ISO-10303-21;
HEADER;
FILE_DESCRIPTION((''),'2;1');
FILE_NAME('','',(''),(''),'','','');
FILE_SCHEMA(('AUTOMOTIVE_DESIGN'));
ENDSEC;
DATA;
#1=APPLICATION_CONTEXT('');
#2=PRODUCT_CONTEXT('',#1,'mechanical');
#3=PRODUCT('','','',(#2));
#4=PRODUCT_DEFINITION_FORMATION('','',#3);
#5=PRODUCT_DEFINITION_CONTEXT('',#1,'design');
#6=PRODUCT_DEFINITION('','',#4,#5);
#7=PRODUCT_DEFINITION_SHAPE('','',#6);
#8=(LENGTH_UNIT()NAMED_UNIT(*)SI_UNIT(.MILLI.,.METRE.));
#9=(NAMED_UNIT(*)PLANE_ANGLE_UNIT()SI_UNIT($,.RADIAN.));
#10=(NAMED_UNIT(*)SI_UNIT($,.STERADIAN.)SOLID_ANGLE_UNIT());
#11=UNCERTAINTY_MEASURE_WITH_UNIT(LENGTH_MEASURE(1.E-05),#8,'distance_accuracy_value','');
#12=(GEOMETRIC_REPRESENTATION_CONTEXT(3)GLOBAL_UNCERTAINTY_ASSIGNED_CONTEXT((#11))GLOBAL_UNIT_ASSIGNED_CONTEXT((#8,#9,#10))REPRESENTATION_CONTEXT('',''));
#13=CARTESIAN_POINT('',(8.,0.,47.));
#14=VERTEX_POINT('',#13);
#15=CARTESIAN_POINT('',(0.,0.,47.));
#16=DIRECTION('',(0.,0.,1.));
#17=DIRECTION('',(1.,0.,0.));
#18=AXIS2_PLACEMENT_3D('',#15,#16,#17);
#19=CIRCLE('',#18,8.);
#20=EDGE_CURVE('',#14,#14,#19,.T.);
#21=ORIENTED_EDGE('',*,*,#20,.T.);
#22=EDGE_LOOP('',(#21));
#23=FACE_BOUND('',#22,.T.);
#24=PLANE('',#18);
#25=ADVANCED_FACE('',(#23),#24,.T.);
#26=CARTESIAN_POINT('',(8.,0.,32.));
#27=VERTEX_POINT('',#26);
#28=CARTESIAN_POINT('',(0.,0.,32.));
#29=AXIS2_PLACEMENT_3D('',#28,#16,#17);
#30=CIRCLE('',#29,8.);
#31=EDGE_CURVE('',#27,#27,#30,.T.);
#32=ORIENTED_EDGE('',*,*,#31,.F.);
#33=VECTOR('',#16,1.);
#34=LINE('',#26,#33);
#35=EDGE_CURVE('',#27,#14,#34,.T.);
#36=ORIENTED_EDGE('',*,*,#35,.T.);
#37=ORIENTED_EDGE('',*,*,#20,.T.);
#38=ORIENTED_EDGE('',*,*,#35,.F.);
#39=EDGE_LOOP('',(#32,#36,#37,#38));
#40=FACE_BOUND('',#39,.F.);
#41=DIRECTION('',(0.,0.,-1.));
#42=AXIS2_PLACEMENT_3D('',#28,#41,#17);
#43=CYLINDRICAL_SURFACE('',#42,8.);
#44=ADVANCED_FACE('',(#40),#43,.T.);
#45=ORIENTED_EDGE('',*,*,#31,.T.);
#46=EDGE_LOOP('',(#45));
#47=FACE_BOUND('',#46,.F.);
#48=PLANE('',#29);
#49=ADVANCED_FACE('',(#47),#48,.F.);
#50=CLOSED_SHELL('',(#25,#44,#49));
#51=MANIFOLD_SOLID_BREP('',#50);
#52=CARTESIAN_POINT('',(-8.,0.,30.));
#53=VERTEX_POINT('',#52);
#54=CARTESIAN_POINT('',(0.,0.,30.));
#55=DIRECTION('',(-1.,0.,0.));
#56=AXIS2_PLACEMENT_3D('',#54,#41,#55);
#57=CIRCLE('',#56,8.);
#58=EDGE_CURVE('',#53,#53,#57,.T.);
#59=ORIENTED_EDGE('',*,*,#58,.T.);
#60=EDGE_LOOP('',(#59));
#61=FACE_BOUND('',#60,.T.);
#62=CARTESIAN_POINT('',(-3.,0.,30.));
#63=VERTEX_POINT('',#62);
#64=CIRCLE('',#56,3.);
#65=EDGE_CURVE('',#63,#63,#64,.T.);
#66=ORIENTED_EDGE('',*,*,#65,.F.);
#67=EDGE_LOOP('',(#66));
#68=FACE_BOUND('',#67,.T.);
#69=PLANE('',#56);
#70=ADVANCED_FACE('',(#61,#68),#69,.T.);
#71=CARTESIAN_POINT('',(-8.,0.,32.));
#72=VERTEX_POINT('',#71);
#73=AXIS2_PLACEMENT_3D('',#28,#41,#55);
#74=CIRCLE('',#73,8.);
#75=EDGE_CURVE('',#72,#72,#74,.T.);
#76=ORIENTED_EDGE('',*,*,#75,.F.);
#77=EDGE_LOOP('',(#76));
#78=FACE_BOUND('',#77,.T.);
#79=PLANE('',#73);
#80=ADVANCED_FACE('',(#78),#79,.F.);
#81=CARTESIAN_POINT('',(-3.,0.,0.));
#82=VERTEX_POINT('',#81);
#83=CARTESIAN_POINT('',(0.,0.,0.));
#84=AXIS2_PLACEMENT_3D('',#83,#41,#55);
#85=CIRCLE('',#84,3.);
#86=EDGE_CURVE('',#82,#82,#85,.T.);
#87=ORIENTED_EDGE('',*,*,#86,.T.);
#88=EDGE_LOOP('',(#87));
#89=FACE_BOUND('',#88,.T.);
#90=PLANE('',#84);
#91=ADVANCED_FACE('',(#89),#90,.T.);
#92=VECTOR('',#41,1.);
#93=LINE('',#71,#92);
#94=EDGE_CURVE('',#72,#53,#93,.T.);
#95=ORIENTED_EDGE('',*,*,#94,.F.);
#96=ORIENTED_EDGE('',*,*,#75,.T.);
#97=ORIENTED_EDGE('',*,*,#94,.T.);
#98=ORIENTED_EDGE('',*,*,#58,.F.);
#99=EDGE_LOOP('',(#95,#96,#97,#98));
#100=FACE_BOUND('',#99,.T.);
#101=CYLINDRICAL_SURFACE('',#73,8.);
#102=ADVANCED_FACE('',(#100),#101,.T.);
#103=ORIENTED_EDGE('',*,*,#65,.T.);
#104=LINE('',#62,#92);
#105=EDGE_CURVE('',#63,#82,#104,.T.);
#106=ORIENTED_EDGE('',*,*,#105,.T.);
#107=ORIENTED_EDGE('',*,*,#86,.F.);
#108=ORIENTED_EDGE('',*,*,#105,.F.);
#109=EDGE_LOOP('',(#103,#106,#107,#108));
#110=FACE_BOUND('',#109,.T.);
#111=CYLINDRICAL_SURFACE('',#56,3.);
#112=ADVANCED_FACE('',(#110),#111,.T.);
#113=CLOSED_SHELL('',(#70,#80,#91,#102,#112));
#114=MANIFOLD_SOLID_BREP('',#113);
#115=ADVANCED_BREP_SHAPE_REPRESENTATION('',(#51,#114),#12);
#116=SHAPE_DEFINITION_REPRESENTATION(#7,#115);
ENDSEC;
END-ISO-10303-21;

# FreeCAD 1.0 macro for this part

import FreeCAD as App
import Part
import Sketcher

V = App.Vector

doc = App.newDocument("Part")
body = doc.addObject("PartDesign::Body", "Body")

sketch1 = doc.addObject("Sketcher::SketchObject", "Sketch")
body.addObject(sketch1)
sketch1.AttachmentSupport = (doc.XZ_Plane, [""])
sketch1.MapMode = "FlatFace"
sketch1.addGeometry(Part.LineSegment(V(-3, 0, 0), V(0, 0, 0)), False)
sketch1.addGeometry(Part.LineSegment(V(0, 0, 0), V(0, 32, 0)), False)
sketch1.addGeometry(Part.LineSegment(V(0, 32, 0), V(-8, 32, 0)), False)
sketch1.addGeometry(Part.LineSegment(V(-8, 32, 0), V(-8, 30, 0)), False)
sketch1.addGeometry(Part.LineSegment(V(-8, 30, 0), V(-3, 30, 0)), False)
sketch1.addGeometry(Part.LineSegment(V(-3, 30, 0), V(-3, 0, 0)), False)
sketch1.addConstraint(Sketcher.Constraint("Coincident", 0, 2, 1, 1))
sketch1.addConstraint(Sketcher.Constraint("Coincident", 1, 2, 2, 1))
sketch1.addConstraint(Sketcher.Constraint("Coincident", 2, 2, 3, 1))
sketch1.addConstraint(Sketcher.Constraint("Coincident", 3, 2, 4, 1))
sketch1.addConstraint(Sketcher.Constraint("Coincident", 4, 2, 5, 1))
sketch1.addConstraint(Sketcher.Constraint("Coincident", 5, 2, 0, 1))
sketch1.addConstraint(Sketcher.Constraint("Horizontal", 0))
sketch1.addConstraint(Sketcher.Constraint("Vertical", 1))
sketch1.addConstraint(Sketcher.Constraint("Horizontal", 2))
sketch1.addConstraint(Sketcher.Constraint("Vertical", 3))
sketch1.addConstraint(Sketcher.Constraint("Horizontal", 4))
sketch1.addConstraint(Sketcher.Constraint("Vertical", 5))
sketch1.addConstraint(Sketcher.Constraint("Coincident", 0, 2, -1, 1))
sketch1.addConstraint(Sketcher.Constraint("DistanceX", 0, 1, 0, 2, 3.0))
sketch1.addConstraint(Sketcher.Constraint("DistanceX", 2, 2, 2, 1, 8.0))
sketch1.addConstraint(Sketcher.Constraint("DistanceY", 1, 1, 1, 2, 32.0))
sketch1.addConstraint(Sketcher.Constraint("DistanceY", 3, 2, 3, 1, 2.0))
revolution = doc.addObject("PartDesign::Revolution", "Revolution")
body.addObject(revolution)
revolution.Profile = sketch1
revolution.ReferenceAxis = (sketch1, ["V_Axis"])
revolution.Angle = 360
body2 = doc.addObject("PartDesign::Body", "Body001")

sketch2 = doc.addObject("Sketcher::SketchObject", "Sketch001")
body2.addObject(sketch2)
sketch2.AttachmentSupport = (doc.getObject("XY_Plane001"), [""])
sketch2.MapMode = "FlatFace"
sketch2.AttachmentOffset = App.Placement(V(0, 0, 32), App.Rotation())
sketch2.addGeometry(Part.Circle(V(0, 0, 0), V(0, 0, 1), 8), False)
sketch2.addConstraint(Sketcher.Constraint("Coincident", 0, 3, -1, 1))
sketch2.addConstraint(Sketcher.Constraint("Diameter", 0, 16.0))
pad1 = doc.addObject("PartDesign::Pad", "Pad")
body2.addObject(pad1)
pad1.Profile = sketch2
pad1.Length = 15

doc.recompute()
